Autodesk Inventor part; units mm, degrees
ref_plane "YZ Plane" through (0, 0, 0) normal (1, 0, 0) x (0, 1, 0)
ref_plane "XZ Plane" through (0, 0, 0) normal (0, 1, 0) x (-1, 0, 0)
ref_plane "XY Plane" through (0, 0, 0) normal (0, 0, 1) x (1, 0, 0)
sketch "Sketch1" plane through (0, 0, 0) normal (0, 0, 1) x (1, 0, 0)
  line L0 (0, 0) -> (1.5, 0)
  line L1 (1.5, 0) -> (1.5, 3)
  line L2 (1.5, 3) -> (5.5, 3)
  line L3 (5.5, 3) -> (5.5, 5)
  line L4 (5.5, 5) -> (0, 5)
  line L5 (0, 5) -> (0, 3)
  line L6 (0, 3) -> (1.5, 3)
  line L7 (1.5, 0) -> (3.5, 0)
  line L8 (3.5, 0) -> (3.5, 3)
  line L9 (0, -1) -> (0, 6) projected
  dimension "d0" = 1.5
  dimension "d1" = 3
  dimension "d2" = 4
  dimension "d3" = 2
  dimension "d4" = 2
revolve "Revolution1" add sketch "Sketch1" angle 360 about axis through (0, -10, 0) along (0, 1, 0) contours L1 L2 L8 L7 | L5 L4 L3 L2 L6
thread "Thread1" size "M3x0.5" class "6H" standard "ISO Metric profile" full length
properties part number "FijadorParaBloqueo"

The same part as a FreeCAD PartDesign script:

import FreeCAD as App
import Part
import Sketcher

V = App.Vector
Q = App.Units.Quantity

doc = App.newDocument("Part")
body = doc.addObject("PartDesign::Body", "Body")

# Sketch on XY plane
sketch1 = doc.addObject("Sketcher::SketchObject", "Sketch")
body.addObject(sketch1)
sketch1.AttachmentSupport = (doc.XY_Plane, [""])
sketch1.MapMode = "FlatFace"
sketch1.addGeometry([
    Part.LineSegment(V(1.5, 3, 0), V(1.5, 0, 0)),  # 0
    Part.LineSegment(V(1.5, 0, 0), V(3.5, 0, 0)),  # 1
    Part.LineSegment(V(3.5, 0, 0), V(3.5, 3, 0)),  # 2
    Part.LineSegment(V(3.5, 3, 0), V(5.5, 3, 0)),  # 3
    Part.LineSegment(V(5.5, 3, 0), V(5.5, 5, 0)),  # 4
    Part.LineSegment(V(5.5, 5, 0), V(0, 5, 0)),  # 5
    Part.LineSegment(V(0, 5, 0), V(0, 3, 0)),  # 6
    Part.LineSegment(V(0, 3, 0), V(1.5, 3, 0)),  # 7
], False)
sketch1.addConstraint([
    Sketcher.Constraint("Coincident", 0, 2, 1, 1),
    Sketcher.Constraint("Coincident", 1, 2, 2, 1),
    Sketcher.Constraint("Coincident", 2, 2, 3, 1),
    Sketcher.Constraint("Coincident", 3, 2, 4, 1),
    Sketcher.Constraint("Coincident", 4, 2, 5, 1),
    Sketcher.Constraint("Coincident", 5, 2, 6, 1),
    Sketcher.Constraint("Coincident", 6, 2, 7, 1),
    Sketcher.Constraint("Coincident", 7, 2, 0, 1),
    Sketcher.Constraint("Vertical", 0),
    Sketcher.Constraint("Horizontal", 1),
    Sketcher.Constraint("Vertical", 2),
    Sketcher.Constraint("Horizontal", 3),
    Sketcher.Constraint("Vertical", 4),
    Sketcher.Constraint("Horizontal", 5),
    Sketcher.Constraint("Vertical", 6),
    Sketcher.Constraint("Horizontal", 7),
    Sketcher.Constraint("PointOnObject", 0, 2, -1),
    Sketcher.Constraint("PointOnObject", 5, 2, -2),
    Sketcher.Constraint("Horizontal", 3, 2, 6, 2),
    Sketcher.Constraint("Equal", 1, 3),
    Sketcher.Constraint("Equal", 3, 4),
    Sketcher.Constraint("DistanceX", 1, 1, 1, 2, Q("2 mm")),
    Sketcher.Constraint("DistanceY", 0, 2, 0, 1, Q("3 mm")),
    Sketcher.Constraint("DistanceX", 7, 1, 7, 2, Q("1.5 mm")),
])
revolution = doc.addObject("PartDesign::Revolution", "Revolution")
body.addObject(revolution)
revolution.Profile = sketch1
revolution.ReferenceAxis = (sketch1, ["V_Axis"])
revolution.Angle = 360

doc.recompute()
